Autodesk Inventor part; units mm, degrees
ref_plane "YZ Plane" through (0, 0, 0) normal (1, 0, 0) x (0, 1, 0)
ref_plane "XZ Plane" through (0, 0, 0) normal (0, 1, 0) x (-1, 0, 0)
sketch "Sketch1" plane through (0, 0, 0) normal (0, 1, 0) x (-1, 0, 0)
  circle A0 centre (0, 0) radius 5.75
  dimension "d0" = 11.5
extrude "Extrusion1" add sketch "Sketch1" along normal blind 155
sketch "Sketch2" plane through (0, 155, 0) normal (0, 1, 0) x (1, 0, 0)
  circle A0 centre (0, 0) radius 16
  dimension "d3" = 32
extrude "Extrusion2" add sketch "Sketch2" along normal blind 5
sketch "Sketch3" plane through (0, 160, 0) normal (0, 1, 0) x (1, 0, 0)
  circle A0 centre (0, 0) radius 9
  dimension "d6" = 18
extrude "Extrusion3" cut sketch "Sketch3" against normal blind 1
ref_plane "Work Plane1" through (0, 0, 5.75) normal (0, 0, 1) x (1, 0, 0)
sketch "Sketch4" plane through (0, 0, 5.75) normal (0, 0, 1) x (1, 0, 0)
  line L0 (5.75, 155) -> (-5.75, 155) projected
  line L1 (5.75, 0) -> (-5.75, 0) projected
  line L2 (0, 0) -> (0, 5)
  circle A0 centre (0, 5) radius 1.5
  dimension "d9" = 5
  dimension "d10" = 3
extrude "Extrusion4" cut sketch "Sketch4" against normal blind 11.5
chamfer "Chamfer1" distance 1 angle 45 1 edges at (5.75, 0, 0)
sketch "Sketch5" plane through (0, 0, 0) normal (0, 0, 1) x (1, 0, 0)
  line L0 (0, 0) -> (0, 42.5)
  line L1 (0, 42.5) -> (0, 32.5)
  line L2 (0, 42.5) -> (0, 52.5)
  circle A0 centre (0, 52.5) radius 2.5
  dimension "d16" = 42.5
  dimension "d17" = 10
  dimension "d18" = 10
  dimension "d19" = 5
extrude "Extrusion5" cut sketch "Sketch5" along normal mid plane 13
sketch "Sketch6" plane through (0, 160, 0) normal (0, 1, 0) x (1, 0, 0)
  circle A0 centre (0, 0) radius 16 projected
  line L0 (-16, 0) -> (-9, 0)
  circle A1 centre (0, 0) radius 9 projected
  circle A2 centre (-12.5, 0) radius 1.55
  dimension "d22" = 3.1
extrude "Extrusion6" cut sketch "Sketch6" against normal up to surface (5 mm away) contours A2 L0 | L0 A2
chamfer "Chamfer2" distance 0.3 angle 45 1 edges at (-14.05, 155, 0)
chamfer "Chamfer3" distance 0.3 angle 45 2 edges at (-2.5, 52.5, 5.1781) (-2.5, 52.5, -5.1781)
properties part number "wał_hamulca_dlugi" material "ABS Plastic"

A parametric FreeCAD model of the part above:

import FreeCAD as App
import Part
import Sketcher

V = App.Vector


def edges_at(feature, points):
    """Names of the edges that pass closest to the given points."""
    edges = feature.Shape.Edges
    near = lambda p: min(range(len(edges)), key=lambda i: edges[i].distToShape(Part.Vertex(*p))[0])
    return sorted({f"Edge{near(p) + 1}" for p in points})

doc = App.newDocument("Part")
params = doc.addObject("Spreadsheet::Sheet", "Params")
for row, (alias, value) in enumerate([
    ("sketch1_diameter", "11.5 mm"),
    ("pad1_length", "155 mm"),
    ("sketch2_diameter", "32 mm"),
    ("pad2_length", "5 mm"),
    ("sketch3_diameter", "18 mm"),
    ("pocket1_length", "1 mm"),
    ("sketch4_diameter", "3 mm"),
    ("pocket2_length", "11.5 mm"),
    ("chamfer_size", "1 mm"),
    ("sketch5_diameter", "5 mm"),
    ("pocket3_length", "13 mm"),
    ("sketch6_diameter", "3.1 mm"),
    ("pocket4_length", "5 mm"),
    ("chamfer2_size", "0.3 mm"),
    ("chamfer3_size", "0.3 mm"),
], start=1):
    params.set(f"A{row}", alias)
    params.set(f"B{row}", "=" + value)
    params.setAlias(f"B{row}", alias)

body = doc.addObject("PartDesign::Body", "Body")

# Sketch on XZ plane
sketch1 = doc.addObject("Sketcher::SketchObject", "Sketch")
body.addObject(sketch1)
sketch1.AttachmentSupport = (doc.XZ_Plane, [""])
sketch1.MapMode = "FlatFace"
sketch1.addGeometry(Part.Circle(V(0, 0, 0), V(0, 0, 1), 5.75), False)
sketch1.addConstraint([
    Sketcher.Constraint("Coincident", 0, 3, -1, 1),
    Sketcher.Constraint("Diameter", 0, 11.5),
])
sketch1.setExpression("Constraints[1]", "Params.sketch1_diameter")
pad1 = doc.addObject("PartDesign::Pad", "Pad")
body.addObject(pad1)
pad1.Profile = sketch1
pad1.setExpression("Length", "Params.pad1_length")
pad1.Reversed = True

# Sketch on XZ plane
sketch2 = doc.addObject("Sketcher::SketchObject", "Sketch001")
body.addObject(sketch2)
sketch2.AttachmentSupport = (doc.XZ_Plane, [""])
sketch2.MapMode = "FlatFace"
sketch2.AttachmentOffset = App.Placement(V(0, 0, -155), App.Rotation())
sketch2.addGeometry(Part.Circle(V(0, 0, 0), V(0, 0, 1), 16), False)
sketch2.addConstraint([
    Sketcher.Constraint("Coincident", 0, 3, -1, 1),
    Sketcher.Constraint("Diameter", 0, 32.0),
])
sketch2.setExpression("Constraints[1]", "Params.sketch2_diameter")
pad2 = doc.addObject("PartDesign::Pad", "Pad001")
body.addObject(pad2)
pad2.Profile = sketch2
pad2.setExpression("Length", "Params.pad2_length")
pad2.Reversed = True

# Sketch on XZ plane
sketch3 = doc.addObject("Sketcher::SketchObject", "Sketch002")
body.addObject(sketch3)
sketch3.AttachmentSupport = (doc.XZ_Plane, [""])
sketch3.MapMode = "FlatFace"
sketch3.AttachmentOffset = App.Placement(V(0, 0, -160), App.Rotation())
sketch3.addGeometry(Part.Circle(V(0, 0, 0), V(0, 0, 1), 9), False)
sketch3.addConstraint([
    Sketcher.Constraint("Coincident", 0, 3, -1, 1),
    Sketcher.Constraint("Diameter", 0, 18.0),
])
sketch3.setExpression("Constraints[1]", "Params.sketch3_diameter")
pocket1 = doc.addObject("PartDesign::Pocket", "Pocket")
body.addObject(pocket1)
pocket1.Profile = sketch3
pocket1.setExpression("Length", "Params.pocket1_length")
pocket1.Reversed = True

# Sketch on XY plane
sketch4 = doc.addObject("Sketcher::SketchObject", "Sketch003")
body.addObject(sketch4)
sketch4.AttachmentSupport = (doc.XY_Plane, [""])
sketch4.MapMode = "FlatFace"
sketch4.AttachmentOffset = App.Placement(V(0, 0, 5.75), App.Rotation())
sketch4.addGeometry(Part.Circle(V(0, 5, 0), V(0, 0, 1), 1.5), False)
sketch4.addConstraint([
    Sketcher.Constraint("PointOnObject", 0, 3, -2),
    Sketcher.Constraint("Diameter", 0, 3.0),
    Sketcher.Constraint("DistanceY", -1, 1, 0, 3, 5.0),
])
sketch4.setExpression("Constraints[1]", "Params.sketch4_diameter")
pocket2 = doc.addObject("PartDesign::Pocket", "Pocket001")
body.addObject(pocket2)
pocket2.Profile = sketch4
pocket2.setExpression("Length", "Params.pocket2_length")
doc.recompute()

chamfer = doc.addObject("PartDesign::Chamfer", "Chamfer")
body.addObject(chamfer)
chamfer.Base = (pocket2, edges_at(pocket2, [(5.75, 0, 0)]))
chamfer.setExpression("Size", "Params.chamfer_size")

# Sketch on XY plane
sketch5 = doc.addObject("Sketcher::SketchObject", "Sketch004")
body.addObject(sketch5)
sketch5.AttachmentSupport = (doc.XY_Plane, [""])
sketch5.MapMode = "FlatFace"
sketch5.addGeometry(Part.Circle(V(0, 52.5, 0), V(0, 0, 1), 2.5), False)
sketch5.addConstraint([
    Sketcher.Constraint("PointOnObject", 0, 3, -2),
    Sketcher.Constraint("Diameter", 0, 5.0),
    Sketcher.Constraint("DistanceY", -1, 1, 0, 3, 52.5),
])
sketch5.setExpression("Constraints[1]", "Params.sketch5_diameter")
pocket3 = doc.addObject("PartDesign::Pocket", "Pocket002")
body.addObject(pocket3)
pocket3.Profile = sketch5
pocket3.setExpression("Length", "Params.pocket3_length")
pocket3.Midplane = True

# Sketch on XZ plane
sketch6 = doc.addObject("Sketcher::SketchObject", "Sketch005")
body.addObject(sketch6)
sketch6.AttachmentSupport = (doc.XZ_Plane, [""])
sketch6.MapMode = "FlatFace"
sketch6.AttachmentOffset = App.Placement(V(0, 0, -160), App.Rotation())
sketch6.addGeometry(Part.Circle(V(-12.5, 0, 0), V(0, 0, 1), 1.55), False)
sketch6.addConstraint([
    Sketcher.Constraint("PointOnObject", 0, 3, -1),
    Sketcher.Constraint("Diameter", 0, 3.1),
    Sketcher.Constraint("DistanceX", 0, 3, -1, 1, 12.5),
])
sketch6.setExpression("Constraints[1]", "Params.sketch6_diameter")
pocket4 = doc.addObject("PartDesign::Pocket", "Pocket003")
body.addObject(pocket4)
pocket4.Profile = sketch6
pocket4.setExpression("Length", "Params.pocket4_length")
pocket4.Reversed = True
doc.recompute()

chamfer2 = doc.addObject("PartDesign::Chamfer", "Chamfer001")
body.addObject(chamfer2)
chamfer2.Base = (pocket4, edges_at(pocket4, [(-14.05, 155, 0)]))
chamfer2.setExpression("Size", "Params.chamfer2_size")
doc.recompute()

chamfer3 = doc.addObject("PartDesign::Chamfer", "Chamfer002")
body.addObject(chamfer3)
chamfer3.Base = (chamfer2, edges_at(chamfer2, [(-2.5, 52.5, 5.178), (-2.5, 52.5, -5.178)]))
chamfer3.setExpression("Size", "Params.chamfer3_size")

doc.recompute()
